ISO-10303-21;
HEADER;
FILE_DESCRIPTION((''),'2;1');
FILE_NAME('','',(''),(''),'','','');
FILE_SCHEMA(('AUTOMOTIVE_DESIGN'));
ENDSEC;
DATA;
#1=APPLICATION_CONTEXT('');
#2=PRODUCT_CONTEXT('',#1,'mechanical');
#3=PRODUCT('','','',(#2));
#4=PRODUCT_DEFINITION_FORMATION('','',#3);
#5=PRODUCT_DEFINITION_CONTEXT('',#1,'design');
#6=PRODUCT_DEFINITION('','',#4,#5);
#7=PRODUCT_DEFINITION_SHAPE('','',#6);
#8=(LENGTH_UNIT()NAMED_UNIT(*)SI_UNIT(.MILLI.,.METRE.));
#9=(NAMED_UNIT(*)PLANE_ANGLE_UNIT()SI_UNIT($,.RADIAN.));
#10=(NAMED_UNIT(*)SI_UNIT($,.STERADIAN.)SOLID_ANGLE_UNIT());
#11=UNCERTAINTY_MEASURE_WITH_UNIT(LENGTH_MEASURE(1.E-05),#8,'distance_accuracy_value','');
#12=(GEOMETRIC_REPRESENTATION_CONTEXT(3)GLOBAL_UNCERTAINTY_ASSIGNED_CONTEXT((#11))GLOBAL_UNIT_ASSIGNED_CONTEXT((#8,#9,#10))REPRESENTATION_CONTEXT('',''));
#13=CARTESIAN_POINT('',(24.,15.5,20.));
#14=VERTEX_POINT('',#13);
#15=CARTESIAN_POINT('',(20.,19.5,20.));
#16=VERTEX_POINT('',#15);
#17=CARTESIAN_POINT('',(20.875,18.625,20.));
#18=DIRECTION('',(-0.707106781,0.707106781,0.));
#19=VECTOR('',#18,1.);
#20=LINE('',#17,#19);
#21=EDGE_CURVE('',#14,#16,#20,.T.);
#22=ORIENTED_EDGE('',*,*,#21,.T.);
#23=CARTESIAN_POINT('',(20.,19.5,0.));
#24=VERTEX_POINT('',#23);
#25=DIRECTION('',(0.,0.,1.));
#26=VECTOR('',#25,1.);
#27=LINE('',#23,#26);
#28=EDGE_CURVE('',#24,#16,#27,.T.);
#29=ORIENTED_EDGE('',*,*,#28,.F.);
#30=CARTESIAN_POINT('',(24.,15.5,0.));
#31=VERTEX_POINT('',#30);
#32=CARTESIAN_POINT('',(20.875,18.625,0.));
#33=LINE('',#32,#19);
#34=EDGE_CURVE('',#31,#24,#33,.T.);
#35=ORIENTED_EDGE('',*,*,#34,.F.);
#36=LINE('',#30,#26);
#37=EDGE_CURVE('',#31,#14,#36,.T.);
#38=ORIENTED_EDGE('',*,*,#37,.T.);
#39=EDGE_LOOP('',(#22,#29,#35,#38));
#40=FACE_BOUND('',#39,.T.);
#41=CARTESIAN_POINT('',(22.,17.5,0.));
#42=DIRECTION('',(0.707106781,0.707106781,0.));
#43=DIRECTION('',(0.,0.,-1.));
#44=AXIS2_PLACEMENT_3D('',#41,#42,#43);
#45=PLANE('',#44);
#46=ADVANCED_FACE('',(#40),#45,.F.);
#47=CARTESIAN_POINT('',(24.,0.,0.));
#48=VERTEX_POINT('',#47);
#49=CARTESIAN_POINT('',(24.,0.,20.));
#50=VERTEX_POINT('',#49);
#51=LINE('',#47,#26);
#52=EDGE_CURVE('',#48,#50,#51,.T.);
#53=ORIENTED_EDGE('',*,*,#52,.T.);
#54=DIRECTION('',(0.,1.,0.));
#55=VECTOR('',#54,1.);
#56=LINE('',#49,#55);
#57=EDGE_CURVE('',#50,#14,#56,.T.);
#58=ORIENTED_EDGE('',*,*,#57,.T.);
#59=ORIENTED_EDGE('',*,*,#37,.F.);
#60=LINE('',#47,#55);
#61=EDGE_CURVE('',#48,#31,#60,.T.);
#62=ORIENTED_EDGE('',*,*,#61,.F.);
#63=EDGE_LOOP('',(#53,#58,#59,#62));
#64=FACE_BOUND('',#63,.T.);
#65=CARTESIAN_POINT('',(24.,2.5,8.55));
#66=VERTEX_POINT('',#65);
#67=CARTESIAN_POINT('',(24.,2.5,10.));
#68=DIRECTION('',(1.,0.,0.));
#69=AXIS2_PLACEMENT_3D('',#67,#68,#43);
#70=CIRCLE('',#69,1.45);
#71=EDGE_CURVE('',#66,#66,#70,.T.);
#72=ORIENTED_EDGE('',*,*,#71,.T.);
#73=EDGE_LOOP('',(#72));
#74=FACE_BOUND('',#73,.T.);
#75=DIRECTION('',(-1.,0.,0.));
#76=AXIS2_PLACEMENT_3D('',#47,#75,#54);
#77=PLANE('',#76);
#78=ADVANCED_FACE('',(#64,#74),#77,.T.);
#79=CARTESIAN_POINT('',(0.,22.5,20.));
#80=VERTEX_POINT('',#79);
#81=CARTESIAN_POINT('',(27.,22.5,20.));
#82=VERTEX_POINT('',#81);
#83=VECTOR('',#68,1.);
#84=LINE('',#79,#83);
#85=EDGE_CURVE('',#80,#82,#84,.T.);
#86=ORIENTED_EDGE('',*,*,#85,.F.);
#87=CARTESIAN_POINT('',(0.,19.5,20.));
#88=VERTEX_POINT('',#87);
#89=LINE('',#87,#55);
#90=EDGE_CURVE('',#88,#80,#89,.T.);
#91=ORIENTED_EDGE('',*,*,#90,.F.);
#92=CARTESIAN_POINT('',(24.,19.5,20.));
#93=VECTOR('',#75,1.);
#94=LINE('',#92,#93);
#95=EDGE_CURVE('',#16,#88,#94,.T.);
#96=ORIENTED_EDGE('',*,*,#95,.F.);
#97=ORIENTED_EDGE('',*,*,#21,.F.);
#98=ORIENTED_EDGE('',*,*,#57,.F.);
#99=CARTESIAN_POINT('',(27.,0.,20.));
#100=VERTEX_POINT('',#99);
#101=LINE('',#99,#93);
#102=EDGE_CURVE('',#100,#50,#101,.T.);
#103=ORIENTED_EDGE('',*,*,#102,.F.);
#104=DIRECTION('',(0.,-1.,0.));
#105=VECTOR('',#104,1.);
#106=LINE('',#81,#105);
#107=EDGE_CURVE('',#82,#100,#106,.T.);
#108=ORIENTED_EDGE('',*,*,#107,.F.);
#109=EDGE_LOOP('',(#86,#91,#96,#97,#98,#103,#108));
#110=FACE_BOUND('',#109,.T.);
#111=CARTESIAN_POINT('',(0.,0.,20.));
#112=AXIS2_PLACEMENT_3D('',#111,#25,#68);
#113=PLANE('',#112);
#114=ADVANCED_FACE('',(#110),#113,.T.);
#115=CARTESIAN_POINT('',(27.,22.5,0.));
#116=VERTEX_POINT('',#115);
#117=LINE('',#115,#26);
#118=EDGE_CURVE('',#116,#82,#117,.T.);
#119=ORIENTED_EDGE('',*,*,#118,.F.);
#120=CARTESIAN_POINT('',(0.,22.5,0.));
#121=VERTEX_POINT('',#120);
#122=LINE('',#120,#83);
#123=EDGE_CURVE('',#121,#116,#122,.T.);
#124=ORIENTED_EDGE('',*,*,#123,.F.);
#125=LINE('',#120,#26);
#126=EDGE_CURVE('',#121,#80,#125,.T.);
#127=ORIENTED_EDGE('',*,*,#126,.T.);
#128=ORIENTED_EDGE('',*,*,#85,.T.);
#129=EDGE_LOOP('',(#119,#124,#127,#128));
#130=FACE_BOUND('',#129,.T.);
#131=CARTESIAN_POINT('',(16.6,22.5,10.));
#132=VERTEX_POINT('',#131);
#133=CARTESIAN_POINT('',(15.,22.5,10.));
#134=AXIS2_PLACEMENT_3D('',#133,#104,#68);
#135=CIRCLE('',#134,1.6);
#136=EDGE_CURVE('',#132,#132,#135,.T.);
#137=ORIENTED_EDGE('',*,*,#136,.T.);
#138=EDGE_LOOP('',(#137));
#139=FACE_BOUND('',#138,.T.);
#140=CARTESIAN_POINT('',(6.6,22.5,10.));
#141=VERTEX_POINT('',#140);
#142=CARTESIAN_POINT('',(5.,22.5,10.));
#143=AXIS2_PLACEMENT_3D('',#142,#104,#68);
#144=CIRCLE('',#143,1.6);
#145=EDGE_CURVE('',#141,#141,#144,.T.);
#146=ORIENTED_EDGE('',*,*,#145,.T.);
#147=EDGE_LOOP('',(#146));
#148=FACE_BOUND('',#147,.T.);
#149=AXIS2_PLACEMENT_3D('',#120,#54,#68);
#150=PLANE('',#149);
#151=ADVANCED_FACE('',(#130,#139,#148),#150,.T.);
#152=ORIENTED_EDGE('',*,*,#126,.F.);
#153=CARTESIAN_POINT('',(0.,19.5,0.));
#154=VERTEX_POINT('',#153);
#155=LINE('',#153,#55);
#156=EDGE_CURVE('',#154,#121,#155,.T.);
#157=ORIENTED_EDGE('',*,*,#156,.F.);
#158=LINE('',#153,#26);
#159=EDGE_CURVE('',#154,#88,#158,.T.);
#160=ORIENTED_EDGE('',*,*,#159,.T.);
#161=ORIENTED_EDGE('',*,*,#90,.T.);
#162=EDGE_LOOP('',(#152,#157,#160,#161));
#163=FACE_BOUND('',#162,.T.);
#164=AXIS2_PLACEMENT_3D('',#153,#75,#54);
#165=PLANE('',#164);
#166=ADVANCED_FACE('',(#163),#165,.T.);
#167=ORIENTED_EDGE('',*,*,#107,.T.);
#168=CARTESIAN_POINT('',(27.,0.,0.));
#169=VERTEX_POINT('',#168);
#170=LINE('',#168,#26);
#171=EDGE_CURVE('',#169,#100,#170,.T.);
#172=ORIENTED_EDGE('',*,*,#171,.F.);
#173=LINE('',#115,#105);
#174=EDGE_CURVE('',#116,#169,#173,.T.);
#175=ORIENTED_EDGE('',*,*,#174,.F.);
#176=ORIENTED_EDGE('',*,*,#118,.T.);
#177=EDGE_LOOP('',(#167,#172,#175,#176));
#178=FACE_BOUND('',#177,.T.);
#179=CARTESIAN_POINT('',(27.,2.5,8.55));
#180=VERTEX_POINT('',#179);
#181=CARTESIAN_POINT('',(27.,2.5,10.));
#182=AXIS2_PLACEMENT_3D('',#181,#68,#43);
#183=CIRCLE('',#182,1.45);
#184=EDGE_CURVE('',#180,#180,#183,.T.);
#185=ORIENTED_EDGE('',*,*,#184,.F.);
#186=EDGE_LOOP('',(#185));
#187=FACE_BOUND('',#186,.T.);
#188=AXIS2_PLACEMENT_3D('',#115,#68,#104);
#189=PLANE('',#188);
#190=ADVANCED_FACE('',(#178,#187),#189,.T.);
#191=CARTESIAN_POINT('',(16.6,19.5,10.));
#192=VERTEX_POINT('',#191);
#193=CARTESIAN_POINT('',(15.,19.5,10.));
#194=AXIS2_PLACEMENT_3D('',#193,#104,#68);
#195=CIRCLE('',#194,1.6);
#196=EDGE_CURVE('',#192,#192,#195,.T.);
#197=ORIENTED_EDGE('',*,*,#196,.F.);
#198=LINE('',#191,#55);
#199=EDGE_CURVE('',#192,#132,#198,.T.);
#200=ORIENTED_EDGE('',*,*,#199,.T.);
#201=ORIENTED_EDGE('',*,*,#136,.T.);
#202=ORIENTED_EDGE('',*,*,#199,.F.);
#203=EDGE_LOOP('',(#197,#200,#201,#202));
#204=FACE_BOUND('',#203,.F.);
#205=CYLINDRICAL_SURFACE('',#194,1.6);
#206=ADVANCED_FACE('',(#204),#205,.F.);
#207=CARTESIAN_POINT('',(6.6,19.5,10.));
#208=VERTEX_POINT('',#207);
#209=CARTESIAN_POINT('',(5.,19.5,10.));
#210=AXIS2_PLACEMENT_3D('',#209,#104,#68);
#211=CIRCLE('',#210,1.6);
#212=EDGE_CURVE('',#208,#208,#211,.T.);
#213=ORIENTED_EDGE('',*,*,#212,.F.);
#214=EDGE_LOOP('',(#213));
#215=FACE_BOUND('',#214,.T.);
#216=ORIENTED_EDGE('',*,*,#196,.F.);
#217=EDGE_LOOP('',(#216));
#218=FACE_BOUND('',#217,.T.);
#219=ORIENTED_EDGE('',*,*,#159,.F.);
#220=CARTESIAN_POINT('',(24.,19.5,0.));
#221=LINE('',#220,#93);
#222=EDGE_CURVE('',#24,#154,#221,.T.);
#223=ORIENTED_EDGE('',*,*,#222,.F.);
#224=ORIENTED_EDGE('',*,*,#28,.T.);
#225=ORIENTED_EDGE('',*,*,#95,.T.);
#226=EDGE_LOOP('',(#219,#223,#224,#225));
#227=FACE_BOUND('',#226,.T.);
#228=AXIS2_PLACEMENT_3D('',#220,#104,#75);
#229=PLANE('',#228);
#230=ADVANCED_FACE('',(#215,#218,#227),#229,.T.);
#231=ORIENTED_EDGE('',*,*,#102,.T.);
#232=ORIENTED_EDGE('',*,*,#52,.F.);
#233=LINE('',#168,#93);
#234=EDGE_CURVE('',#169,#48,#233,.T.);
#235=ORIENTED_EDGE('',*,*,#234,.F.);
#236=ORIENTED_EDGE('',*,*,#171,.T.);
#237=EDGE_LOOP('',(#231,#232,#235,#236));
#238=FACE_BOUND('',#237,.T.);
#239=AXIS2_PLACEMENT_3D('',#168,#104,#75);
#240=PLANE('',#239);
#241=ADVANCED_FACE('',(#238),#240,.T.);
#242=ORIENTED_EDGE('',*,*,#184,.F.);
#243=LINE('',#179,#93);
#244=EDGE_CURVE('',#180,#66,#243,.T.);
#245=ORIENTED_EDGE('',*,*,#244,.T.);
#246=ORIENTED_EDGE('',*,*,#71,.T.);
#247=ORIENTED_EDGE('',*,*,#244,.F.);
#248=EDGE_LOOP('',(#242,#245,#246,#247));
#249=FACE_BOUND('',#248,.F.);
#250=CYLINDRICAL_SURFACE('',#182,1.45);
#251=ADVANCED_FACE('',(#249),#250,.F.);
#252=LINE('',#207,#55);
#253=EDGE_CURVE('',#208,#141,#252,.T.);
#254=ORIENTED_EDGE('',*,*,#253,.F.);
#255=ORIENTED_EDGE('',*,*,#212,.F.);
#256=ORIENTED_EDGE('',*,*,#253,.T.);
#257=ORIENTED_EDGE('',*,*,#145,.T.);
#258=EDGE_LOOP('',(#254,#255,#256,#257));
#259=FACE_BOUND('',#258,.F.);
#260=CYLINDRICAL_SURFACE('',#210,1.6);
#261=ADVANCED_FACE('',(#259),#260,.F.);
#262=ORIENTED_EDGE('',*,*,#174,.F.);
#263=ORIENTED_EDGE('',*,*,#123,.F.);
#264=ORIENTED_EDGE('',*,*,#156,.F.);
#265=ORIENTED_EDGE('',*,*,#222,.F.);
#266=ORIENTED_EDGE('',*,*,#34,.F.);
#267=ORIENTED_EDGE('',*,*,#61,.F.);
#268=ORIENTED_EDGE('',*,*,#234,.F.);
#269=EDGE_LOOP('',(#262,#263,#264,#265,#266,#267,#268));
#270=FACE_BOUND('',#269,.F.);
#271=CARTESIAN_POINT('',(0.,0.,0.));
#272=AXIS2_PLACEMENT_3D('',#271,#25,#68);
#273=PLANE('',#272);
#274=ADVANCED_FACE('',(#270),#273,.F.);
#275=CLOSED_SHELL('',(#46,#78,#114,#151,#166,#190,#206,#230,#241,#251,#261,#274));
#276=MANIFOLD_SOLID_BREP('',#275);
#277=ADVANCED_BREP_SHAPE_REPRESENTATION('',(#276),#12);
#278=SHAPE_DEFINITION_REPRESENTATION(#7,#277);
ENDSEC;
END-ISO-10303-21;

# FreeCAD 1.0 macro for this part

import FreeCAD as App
import Part
import Sketcher
from FreeCAD import Vector
Q = App.Units.Quantity


def edges_at(feature, points):
    """Names of the edges that pass closest to the given points."""
    edges = feature.Shape.Edges
    near = lambda p: min(range(len(edges)), key=lambda i: edges[i].distToShape(Part.Vertex(*p))[0])
    return sorted({f"Edge{near(p) + 1}" for p in points})

doc = App.newDocument("Part")
body = doc.addObject("PartDesign::Body", "Body")

# Sketch on XY plane
sketch1 = body.newObject("Sketcher::SketchObject", "Sketch")
sketch1.AttachmentSupport = (doc.getObject("XY_Plane"), [""])
sketch1.MapMode = "FlatFace"
sketch1.addGeometry(Part.LineSegment(Vector(27, 22.5, 0), Vector(0, 22.5, 0)), False)
sketch1.addGeometry(Part.LineSegment(Vector(0, 22.5, 0), Vector(0, 19.5, 0)), False)
sketch1.addGeometry(Part.LineSegment(Vector(0, 19.5, 0), Vector(24, 19.5, 0)), False)
sketch1.addGeometry(Part.LineSegment(Vector(24, 19.5, 0), Vector(24, 0, 0)), False)
sketch1.addGeometry(Part.LineSegment(Vector(24, 0, 0), Vector(27, 0, 0)), False)
sketch1.addGeometry(Part.LineSegment(Vector(27, 0, 0), Vector(27, 22.5, 0)), False)
sketch1.addConstraint(Sketcher.Constraint("Coincident", 0, 2, 1, 1))
sketch1.addConstraint(Sketcher.Constraint("Coincident", 1, 2, 2, 1))
sketch1.addConstraint(Sketcher.Constraint("Coincident", 2, 2, 3, 1))
sketch1.addConstraint(Sketcher.Constraint("Coincident", 3, 2, 4, 1))
sketch1.addConstraint(Sketcher.Constraint("Coincident", 4, 2, 5, 1))
sketch1.addConstraint(Sketcher.Constraint("Coincident", 5, 2, 0, 1))
sketch1.addConstraint(Sketcher.Constraint("Horizontal", 0))
sketch1.addConstraint(Sketcher.Constraint("Vertical", 1))
sketch1.addConstraint(Sketcher.Constraint("Horizontal", 2))
sketch1.addConstraint(Sketcher.Constraint("Vertical", 3))
sketch1.addConstraint(Sketcher.Constraint("Horizontal", 4))
sketch1.addConstraint(Sketcher.Constraint("Vertical", 5))
sketch1.addConstraint(Sketcher.Constraint("PointOnObject", 0, 2, -2))
sketch1.addConstraint(Sketcher.Constraint("PointOnObject", 3, 2, -1))
sketch1.addConstraint(Sketcher.Constraint("Equal", 4, 1))
sketch1.addConstraint(Sketcher.Constraint("DistanceX", 0, 2, 0, 1, Q("27 mm")))
sketch1.addConstraint(Sketcher.Constraint("DistanceX", 4, 1, 4, 2, Q("3 mm")))
sketch1.addConstraint(Sketcher.Constraint("DistanceY", 5, 1, 5, 2, Q("22.5 mm")))
pad1 = body.newObject("PartDesign::Pad", "Pad")
pad1.Profile = sketch1
pad1.Length = 20
doc.recompute()

chamfer = body.newObject("PartDesign::Chamfer", "Chamfer")
chamfer.Base = (pad1, edges_at(pad1, [(24, 19.5, 10)]))
chamfer.Size = 4

# Sketch on YZ plane
sketch2 = body.newObject("Sketcher::SketchObject", "Sketch001")
sketch2.AttachmentSupport = (doc.getObject("YZ_Plane"), [""])
sketch2.MapMode = "FlatFace"
sketch2.AttachmentOffset = App.Placement(Vector(0, 0, 27), App.Rotation())
sketch2.addGeometry(Part.Circle(Vector(2.5, 10, 0), Vector(0, 0, 1), 1.45), False)
sketch2.addConstraint(Sketcher.Constraint("Diameter", 0, Q("2.9 mm")))
sketch2.addConstraint(Sketcher.Constraint("DistanceX", -1, 1, 0, 3, Q("2.5 mm")))
sketch2.addConstraint(Sketcher.Constraint("DistanceY", -1, 1, 0, 3, Q("10 mm")))
pocket1 = body.newObject("PartDesign::Pocket", "Pocket")
pocket1.Profile = sketch2
pocket1.Length = 3

# Sketch on XZ plane
sketch3 = body.newObject("Sketcher::SketchObject", "Sketch002")
sketch3.AttachmentSupport = (doc.getObject("XZ_Plane"), [""])
sketch3.MapMode = "FlatFace"
sketch3.AttachmentOffset = App.Placement(Vector(0, 0, -19.5), App.Rotation())
sketch3.addGeometry(Part.Circle(Vector(5, 10, 0), Vector(0, 0, 1), 1.6), False)
sketch3.addGeometry(Part.Circle(Vector(15, 10, 0), Vector(0, 0, 1), 1.6), False)
sketch3.addConstraint(Sketcher.Constraint("Equal", 0, 1))
sketch3.addConstraint(Sketcher.Constraint("Horizontal", 0, 3, 1, 3))
sketch3.addConstraint(Sketcher.Constraint("Diameter", 0, Q("3.2 mm")))
sketch3.addConstraint(Sketcher.Constraint("DistanceX", -1, 1, 0, 3, Q("5 mm")))
sketch3.addConstraint(Sketcher.Constraint("DistanceY", -1, 1, 0, 3, Q("10 mm")))
sketch3.addConstraint(Sketcher.Constraint("DistanceX", -1, 1, 1, 3, Q("15 mm")))
pocket2 = body.newObject("PartDesign::Pocket", "Pocket001")
pocket2.Profile = sketch3
pocket2.Length = 3

doc.recompute()
